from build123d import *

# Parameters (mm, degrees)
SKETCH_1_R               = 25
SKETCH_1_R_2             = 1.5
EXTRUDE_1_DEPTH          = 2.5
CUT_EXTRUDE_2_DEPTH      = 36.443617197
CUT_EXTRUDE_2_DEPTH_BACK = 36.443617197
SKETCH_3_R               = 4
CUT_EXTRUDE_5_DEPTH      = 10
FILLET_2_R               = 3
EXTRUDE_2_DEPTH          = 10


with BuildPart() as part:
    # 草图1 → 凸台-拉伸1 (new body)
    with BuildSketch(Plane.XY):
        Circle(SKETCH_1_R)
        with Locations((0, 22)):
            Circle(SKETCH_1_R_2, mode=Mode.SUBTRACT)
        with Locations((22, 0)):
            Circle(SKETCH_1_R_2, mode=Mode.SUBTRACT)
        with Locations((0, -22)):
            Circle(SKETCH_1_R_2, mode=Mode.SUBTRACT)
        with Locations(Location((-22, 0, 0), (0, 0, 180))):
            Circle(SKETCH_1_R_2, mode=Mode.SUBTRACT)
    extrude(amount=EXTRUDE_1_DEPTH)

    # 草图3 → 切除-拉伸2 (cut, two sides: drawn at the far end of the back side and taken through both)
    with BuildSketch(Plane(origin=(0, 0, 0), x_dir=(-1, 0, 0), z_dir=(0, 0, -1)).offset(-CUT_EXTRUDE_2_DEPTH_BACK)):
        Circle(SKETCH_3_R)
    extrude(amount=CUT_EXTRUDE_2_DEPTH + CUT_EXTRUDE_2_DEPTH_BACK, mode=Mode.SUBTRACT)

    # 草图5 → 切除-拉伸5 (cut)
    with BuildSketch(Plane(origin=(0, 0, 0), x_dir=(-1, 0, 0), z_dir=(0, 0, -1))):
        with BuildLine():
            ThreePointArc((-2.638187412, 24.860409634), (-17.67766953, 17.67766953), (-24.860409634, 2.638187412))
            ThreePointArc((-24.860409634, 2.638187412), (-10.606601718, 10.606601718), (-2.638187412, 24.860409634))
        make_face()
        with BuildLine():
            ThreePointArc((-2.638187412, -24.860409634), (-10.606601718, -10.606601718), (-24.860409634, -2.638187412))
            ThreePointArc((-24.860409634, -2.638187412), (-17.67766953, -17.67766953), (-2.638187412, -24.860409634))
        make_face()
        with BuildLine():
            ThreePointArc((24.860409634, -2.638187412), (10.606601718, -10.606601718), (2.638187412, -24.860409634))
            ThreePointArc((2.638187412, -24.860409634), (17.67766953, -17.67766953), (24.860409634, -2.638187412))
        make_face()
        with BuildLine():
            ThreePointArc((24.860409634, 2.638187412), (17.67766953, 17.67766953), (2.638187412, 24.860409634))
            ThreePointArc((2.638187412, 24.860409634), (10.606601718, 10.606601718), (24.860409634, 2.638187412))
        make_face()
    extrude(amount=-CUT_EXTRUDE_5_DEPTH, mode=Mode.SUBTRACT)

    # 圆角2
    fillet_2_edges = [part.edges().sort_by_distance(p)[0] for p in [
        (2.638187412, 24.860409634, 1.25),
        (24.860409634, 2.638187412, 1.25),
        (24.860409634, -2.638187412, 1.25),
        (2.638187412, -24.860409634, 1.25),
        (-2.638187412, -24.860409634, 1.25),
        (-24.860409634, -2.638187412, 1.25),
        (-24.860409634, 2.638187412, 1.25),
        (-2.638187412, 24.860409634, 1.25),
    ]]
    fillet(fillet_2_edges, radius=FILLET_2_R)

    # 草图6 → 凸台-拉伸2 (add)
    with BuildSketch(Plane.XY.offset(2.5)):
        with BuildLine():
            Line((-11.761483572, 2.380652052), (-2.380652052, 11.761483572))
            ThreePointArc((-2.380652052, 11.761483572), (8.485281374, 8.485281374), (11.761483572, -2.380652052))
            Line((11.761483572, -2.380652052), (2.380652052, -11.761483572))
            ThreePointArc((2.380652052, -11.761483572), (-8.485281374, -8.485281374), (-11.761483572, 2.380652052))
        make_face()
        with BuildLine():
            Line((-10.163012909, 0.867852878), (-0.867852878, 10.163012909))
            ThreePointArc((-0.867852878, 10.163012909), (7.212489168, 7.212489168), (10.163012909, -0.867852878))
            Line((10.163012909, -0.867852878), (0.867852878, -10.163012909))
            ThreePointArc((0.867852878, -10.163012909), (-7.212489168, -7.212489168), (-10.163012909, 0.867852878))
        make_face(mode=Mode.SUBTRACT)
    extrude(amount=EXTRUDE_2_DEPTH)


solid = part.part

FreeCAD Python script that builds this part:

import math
import FreeCAD as App
import Part
import Sketcher
Q = App.Units.Quantity


def edges_at(feature, points):
    """Names of the edges that pass closest to the given points."""
    edges = feature.Shape.Edges
    near = lambda p: min(range(len(edges)), key=lambda i: edges[i].distToShape(Part.Vertex(*p))[0])
    return sorted({f"Edge{near(p) + 1}" for p in points})

doc = App.newDocument("Part")
body = doc.addObject("PartDesign::Body", "Body")

# Sketch on XY plane
sketch1 = doc.addObject("Sketcher::SketchObject", "Sketch")
body.addObject(sketch1)
sketch1.AttachmentSupport = (doc.XY_Plane, [""])
sketch1.MapMode = "FlatFace"
sketch1.addGeometry([
    Part.Circle(App.Vector(0, 0, 0), App.Vector(0, 0, 1), 25),  # 0
    Part.Circle(App.Vector(0, -22, 0), App.Vector(0, 0, 1), 1.5),  # 1
    Part.Circle(App.Vector(-22, 0, 0), App.Vector(0, 0, 1), 1.5),  # 2
    Part.Circle(App.Vector(22, 0, 0), App.Vector(0, 0, 1), 1.5),  # 3
    Part.Circle(App.Vector(0, 22, 0), App.Vector(0, 0, 1), 1.5),  # 4
], False)
sketch1.addConstraint([
    Sketcher.Constraint("Coincident", 0, 3, -1, 1),
    Sketcher.Constraint("Equal", 1, 2),
    Sketcher.Constraint("Equal", 2, 3),
    Sketcher.Constraint("Equal", 3, 4),
    Sketcher.Constraint("Symmetric", 2, 3, 3, 3, -1, 1),
    Sketcher.Constraint("Symmetric", 1, 3, 4, 3, -1, 1),
    Sketcher.Constraint("PointOnObject", 1, 3, -2),
    Sketcher.Constraint("PointOnObject", 2, 3, -1),
    Sketcher.Constraint("Diameter", 0, 50.0),
    Sketcher.Constraint("Diameter", 1, 3.0),
    Sketcher.Constraint("DistanceY", 1, 3, -1, 1, 22.0),
    Sketcher.Constraint("DistanceX", 2, 3, -1, 1, 22.0),
])
pad1 = doc.addObject("PartDesign::Pad", "Pad")
body.addObject(pad1)
pad1.Profile = sketch1
pad1.Length = 2.5

# Sketch on XY plane
sketch2 = doc.addObject("Sketcher::SketchObject", "Sketch001")
body.addObject(sketch2)
sketch2.AttachmentSupport = (doc.XY_Plane, [""])
sketch2.MapMode = "FlatFace"
sketch2.addGeometry(Part.Circle(App.Vector(0, 0, 0), App.Vector(0, 0, 1), 4), False)
sketch2.addConstraint([
    Sketcher.Constraint("Coincident", 0, 3, -1, 1),
    Sketcher.Constraint("Diameter", 0, 8.0),
])
pocket1 = doc.addObject("PartDesign::Pocket", "Pocket")
body.addObject(pocket1)
pocket1.Profile = sketch2
pocket1.Type = "ThroughAll"
pocket1.Midplane = True

# Sketch on XY plane
sketch3 = doc.addObject("Sketcher::SketchObject", "Sketch002")
body.addObject(sketch3)
sketch3.AttachmentSupport = (doc.XY_Plane, [""])
sketch3.MapMode = "FlatFace"
sketch3.addGeometry([
    Part.ArcOfCircle(Part.Circle(App.Vector(0, 0, 0), App.Vector(0, 0, 1), 25), math.radians(6), math.radians(84)),  # 0
    Part.ArcOfCircle(Part.Circle(App.Vector(32, 32, 0), App.Vector(0, 0, 1), 30), math.radians(-167), math.radians(-103)),  # 1
    Part.ArcOfCircle(Part.Circle(App.Vector(32, -32, 0), App.Vector(0, 0, 1), 30), math.radians(103), math.radians(167)),  # 2
    Part.ArcOfCircle(Part.Circle(App.Vector(0, 0, 0), App.Vector(0, 0, 1), 25), math.radians(-84), math.radians(-6)),  # 3
    Part.ArcOfCircle(Part.Circle(App.Vector(-32, -32, 0), App.Vector(0, 0, 1), 30), math.radians(13), math.radians(77)),  # 4
    Part.ArcOfCircle(Part.Circle(App.Vector(0, 0, 0), App.Vector(0, 0, 1), 25), math.radians(-174), math.radians(-96)),  # 5
    Part.ArcOfCircle(Part.Circle(App.Vector(0, 0, 0), App.Vector(0, 0, 1), 25), math.radians(96), math.radians(174)),  # 6
    Part.ArcOfCircle(Part.Circle(App.Vector(-32, 32, 0), App.Vector(0, 0, 1), 30), math.radians(-77), math.radians(-13)),  # 7
], False)
sketch3.addConstraint([
    Sketcher.Constraint("Coincident", 0, 1, 1, 2),
    Sketcher.Constraint("Coincident", 1, 1, 0, 2),
    Sketcher.Constraint("Coincident", 2, 1, 3, 2),
    Sketcher.Constraint("Coincident", 3, 1, 2, 2),
    Sketcher.Constraint("Coincident", 4, 1, 5, 2),
    Sketcher.Constraint("Coincident", 5, 1, 4, 2),
    Sketcher.Constraint("Coincident", 6, 1, 7, 2),
    Sketcher.Constraint("Coincident", 7, 1, 6, 2),
    Sketcher.Constraint("Coincident", 0, 3, -1, 1),
    Sketcher.Constraint("Coincident", 3, 3, -1, 1),
    Sketcher.Constraint("Coincident", 5, 3, -1, 1),
    Sketcher.Constraint("Coincident", 6, 3, -1, 1),
    Sketcher.Constraint("Equal", 1, 2),
    Sketcher.Constraint("Equal", 0, 3),
    Sketcher.Constraint("Equal", 2, 4),
    Sketcher.Constraint("Equal", 3, 5),
    Sketcher.Constraint("Equal", 5, 6),
    Sketcher.Constraint("Equal", 4, 7),
    Sketcher.Constraint("Symmetric", 1, 3, 4, 3, -1, 1),
    Sketcher.Constraint("Symmetric", 2, 3, 7, 3, -1, 1),
    Sketcher.Constraint("Symmetric", 2, 3, 4, 3, -2),
    Sketcher.Constraint("Radius", 0, 25.0),
    Sketcher.Constraint("Radius", 1, 30.0),
    Sketcher.Constraint("DistanceX", -1, 1, 0, 1, 24.86041),
    Sketcher.Constraint("DistanceY", 3, 1, -1, 1, 24.86041),
])
pocket2 = doc.addObject("PartDesign::Pocket", "Pocket001")
body.addObject(pocket2)
pocket2.Profile = sketch3
pocket2.Length = 10
pocket2.Reversed = True
doc.recompute()

fillet = doc.addObject("PartDesign::Fillet", "Fillet")
body.addObject(fillet)
fillet.Base = (pocket2, edges_at(pocket2, [
    (2.638, 24.86, 1.25),
    (24.86, 2.638, 1.25),
    (24.86, -2.638, 1.25),
    (2.638, -24.86, 1.25),
    (-2.638, -24.86, 1.25),
    (-24.86, -2.638, 1.25),
    (-24.86, 2.638, 1.25),
    (-2.638, 24.86, 1.25),
]))
fillet.Radius = 3

# Sketch on XY plane
sketch4 = doc.addObject("Sketcher::SketchObject", "Sketch003")
body.addObject(sketch4)
sketch4.AttachmentSupport = (doc.XY_Plane, [""])
sketch4.MapMode = "FlatFace"
sketch4.AttachmentOffset = App.Placement(App.Vector(0, 0, 2.5), App.Rotation())
sketch4.addGeometry([
    Part.LineSegment(App.Vector(-2, 12, 0), App.Vector(-12, 2, 0)),  # 0
    Part.ArcOfCircle(Part.Circle(App.Vector(0, 0, 0), App.Vector(0, 0, 1), 12), math.radians(169), math.radians(281)),  # 1
    Part.LineSegment(App.Vector(2, -12, 0), App.Vector(12, -2, 0)),  # 2
    Part.ArcOfCircle(Part.Circle(App.Vector(0, 0, 0), App.Vector(0, 0, 1), 12), math.radians(-11), math.radians(101)),  # 3
    Part.LineSegment(App.Vector(-10, 1, 0), App.Vector(-1, 10, 0)),  # 4
    Part.ArcOfCircle(Part.Circle(App.Vector(0, 0, 0), App.Vector(0, 0, 1), 10), math.radians(-5), math.radians(95)),  # 5
    Part.LineSegment(App.Vector(10, -1, 0), App.Vector(1, -10, 0)),  # 6
    Part.ArcOfCircle(Part.Circle(App.Vector(0, 0, 0), App.Vector(0, 0, 1), 10), math.radians(175), math.radians(275)),  # 7
], False)
sketch4.addConstraint([
    Sketcher.Constraint("Coincident", 0, 2, 1, 1),
    Sketcher.Constraint("Coincident", 1, 2, 2, 1),
    Sketcher.Constraint("Coincident", 2, 2, 3, 1),
    Sketcher.Constraint("Coincident", 3, 2, 0, 1),
    Sketcher.Constraint("Coincident", 4, 2, 5, 2),
    Sketcher.Constraint("Coincident", 5, 1, 6, 1),
    Sketcher.Constraint("Coincident", 6, 2, 7, 2),
    Sketcher.Constraint("Coincident", 7, 1, 4, 1),
    Sketcher.Constraint("Coincident", 1, 3, -1, 1),
    Sketcher.Constraint("Coincident", 3, 3, -1, 1),
    Sketcher.Constraint("Coincident", 5, 3, -1, 1),
    Sketcher.Constraint("Coincident", 7, 3, -1, 1),
    Sketcher.Constraint("Equal", 1, 3),
    Sketcher.Constraint("Equal", 5, 7),
    Sketcher.Constraint("Parallel", 0, 2),
    Sketcher.Constraint("Parallel", 2, 4),
    Sketcher.Constraint("Parallel", 4, 6),
    Sketcher.Constraint("Equal", 0, 2),
    Sketcher.Constraint("Equal", 4, 6),
    Sketcher.Constraint("Radius", 1, 12.0),
    Sketcher.Constraint("Radius", 5, 10.2),
    Sketcher.Constraint("Angle", 0, Q("-135 deg")),
    Sketcher.Constraint("Distance", 0, 13.266499),
    Sketcher.Constraint("DistanceX", 3, 2, 4, 2, 1.512799),
])
pad2 = doc.addObject("PartDesign::Pad", "Pad001")
body.addObject(pad2)
pad2.Profile = sketch4
pad2.Length = 10

doc.recompute()
